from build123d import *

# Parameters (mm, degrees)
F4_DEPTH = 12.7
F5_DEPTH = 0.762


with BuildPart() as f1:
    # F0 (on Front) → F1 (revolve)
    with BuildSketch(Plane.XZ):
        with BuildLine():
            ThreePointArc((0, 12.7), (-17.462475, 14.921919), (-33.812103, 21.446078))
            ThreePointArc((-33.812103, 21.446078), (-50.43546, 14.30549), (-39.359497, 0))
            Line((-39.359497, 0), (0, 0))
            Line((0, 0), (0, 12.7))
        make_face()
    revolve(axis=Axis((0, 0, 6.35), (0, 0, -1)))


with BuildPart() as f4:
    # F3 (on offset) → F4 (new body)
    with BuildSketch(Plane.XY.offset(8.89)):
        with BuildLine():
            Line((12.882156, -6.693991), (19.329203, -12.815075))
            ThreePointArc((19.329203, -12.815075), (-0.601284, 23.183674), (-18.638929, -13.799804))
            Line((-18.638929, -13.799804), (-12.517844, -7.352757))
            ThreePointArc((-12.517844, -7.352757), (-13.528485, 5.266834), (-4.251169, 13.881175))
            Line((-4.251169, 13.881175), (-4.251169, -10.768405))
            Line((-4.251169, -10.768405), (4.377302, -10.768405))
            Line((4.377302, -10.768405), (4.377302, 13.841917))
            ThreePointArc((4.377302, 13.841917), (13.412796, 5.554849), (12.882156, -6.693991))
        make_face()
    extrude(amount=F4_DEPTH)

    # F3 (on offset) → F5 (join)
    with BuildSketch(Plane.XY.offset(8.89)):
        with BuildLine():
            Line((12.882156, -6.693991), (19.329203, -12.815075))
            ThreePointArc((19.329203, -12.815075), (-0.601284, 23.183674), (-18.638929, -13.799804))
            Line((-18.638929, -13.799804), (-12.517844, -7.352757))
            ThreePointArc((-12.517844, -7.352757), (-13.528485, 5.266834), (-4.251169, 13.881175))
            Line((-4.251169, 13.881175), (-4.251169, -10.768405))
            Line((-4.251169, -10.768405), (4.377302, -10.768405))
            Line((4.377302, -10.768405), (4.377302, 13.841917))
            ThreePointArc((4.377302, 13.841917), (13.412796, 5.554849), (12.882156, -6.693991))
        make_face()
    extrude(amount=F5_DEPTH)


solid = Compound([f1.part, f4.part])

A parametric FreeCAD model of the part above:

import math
import FreeCAD as App
import Part
import Sketcher
from FreeCAD import Vector
Q = App.Units.Quantity

doc = App.newDocument("Part")
params = doc.addObject("Spreadsheet::Sheet", "Params")
for row, (alias, value) in enumerate([
    ("sketch1_height", "0.5 in"),
    ("revolution_angle", "360 deg"),
    ("sketch2_length", "0.35 in"),
    ("pad1_length", "0.5 in"),
    ("sketch3_length", "0.35 in"),
    ("pad2_length", "0.03 in"),
], start=1):
    params.set(f"A{row}", alias)
    params.set(f"B{row}", "=" + value)
    params.setAlias(f"B{row}", alias)

body = doc.addObject("PartDesign::Body", "Body")

# Sketch on XZ plane
sketch1 = body.newObject("Sketcher::SketchObject", "Sketch")
sketch1.AttachmentSupport = (doc.getObject("XZ_Plane"), [""])
sketch1.MapMode = "FlatFace"
sketch1.addGeometry(Part.ArcOfCircle(Part.Circle(Vector(0, 82, 0), Vector(0, 0, 1), 70), math.radians(-119), math.radians(-90)), False)
sketch1.addGeometry(Part.ArcOfCircle(Part.Circle(Vector(-39, 11, 0), Vector(0, 0, 1), 11), math.radians(61), math.radians(270)), False)
sketch1.addGeometry(Part.LineSegment(Vector(-39, 0, 0), Vector(0, 0, 0)), False)
sketch1.addGeometry(Part.LineSegment(Vector(0, 0, 0), Vector(0, 13, 0)), False)
sketch1.addConstraint(Sketcher.Constraint("Tangent", 0, 1, 1, 1))
sketch1.addConstraint(Sketcher.Constraint("Tangent", 1, 2, 2, 1))
sketch1.addConstraint(Sketcher.Constraint("Coincident", 2, 2, 3, 1))
sketch1.addConstraint(Sketcher.Constraint("Coincident", 3, 2, 0, 2))
sketch1.addConstraint(Sketcher.Constraint("Horizontal", 2))
sketch1.addConstraint(Sketcher.Constraint("Vertical", 3))
sketch1.addConstraint(Sketcher.Constraint("Coincident", 2, 2, -1, 1))
sketch1.addConstraint(Sketcher.Constraint("PointOnObject", 0, 3, -2))
sketch1.addConstraint(Sketcher.Constraint("DistanceY", 3, 1, 3, 2, Q("0.5 in")))
sketch1.addConstraint(Sketcher.Constraint("Radius", 0, 69.731381))
sketch1.addConstraint(Sketcher.Constraint("Radius", 1, 11.440503))
sketch1.setExpression("Constraints[8]", "Params.sketch1_height")
revolution = body.newObject("PartDesign::Revolution", "Revolution")
revolution.Profile = sketch1
revolution.ReferenceAxis = (sketch1, ["V_Axis"])
revolution.setExpression("Angle", "Params.revolution_angle")
body2 = doc.addObject("PartDesign::Body", "Body001")

# Sketch on XY plane
sketch2 = body2.newObject("Sketcher::SketchObject", "Sketch001")
sketch2.AttachmentSupport = (doc.getObject("XY_Plane001"), [""])
sketch2.MapMode = "FlatFace"
sketch2.AttachmentOffset = App.Placement(Vector(0, 0, 0.35 * 25.4), App.Rotation())
sketch2.addGeometry(Part.LineSegment(Vector(13, -7, 0), Vector(19, -13, 0)), False)
sketch2.addGeometry(Part.ArcOfCircle(Part.Circle(Vector(0, 0, 0), Vector(0, 0, 1), 23), math.radians(-34), math.radians(217)), False)
sketch2.addGeometry(Part.LineSegment(Vector(-19, -14, 0), Vector(-13, -7, 0)), False)
sketch2.addGeometry(Part.ArcOfCircle(Part.Circle(Vector(0, 0, 0), Vector(0, 0, 1), 15), math.radians(107), math.radians(210)), False)
sketch2.addGeometry(Part.LineSegment(Vector(-4, 14, 0), Vector(-4, -11, 0)), False)
sketch2.addGeometry(Part.LineSegment(Vector(-4, -11, 0), Vector(4, -11, 0)), False)
sketch2.addGeometry(Part.LineSegment(Vector(4, -11, 0), Vector(4, 14, 0)), False)
sketch2.addGeometry(Part.ArcOfCircle(Part.Circle(Vector(0, 0, 0), Vector(0, 0, 1), 15), math.radians(-27), math.radians(72)), False)
sketch2.addConstraint(Sketcher.Constraint("Coincident", 0, 2, 1, 1))
sketch2.addConstraint(Sketcher.Constraint("Coincident", 1, 2, 2, 1))
sketch2.addConstraint(Sketcher.Constraint("Coincident", 2, 2, 3, 2))
sketch2.addConstraint(Sketcher.Constraint("Coincident", 3, 1, 4, 1))
sketch2.addConstraint(Sketcher.Constraint("Coincident", 4, 2, 5, 1))
sketch2.addConstraint(Sketcher.Constraint("Coincident", 5, 2, 6, 1))
sketch2.addConstraint(Sketcher.Constraint("Coincident", 6, 2, 7, 2))
sketch2.addConstraint(Sketcher.Constraint("Coincident", 7, 1, 0, 1))
sketch2.addConstraint(Sketcher.Constraint("Vertical", 4))
sketch2.addConstraint(Sketcher.Constraint("Horizontal", 5))
sketch2.addConstraint(Sketcher.Constraint("Vertical", 6))
sketch2.addConstraint(Sketcher.Constraint("Coincident", 1, 3, -1, 1))
sketch2.addConstraint(Sketcher.Constraint("Coincident", 3, 3, -1, 1))
sketch2.addConstraint(Sketcher.Constraint("Coincident", 7, 3, -1, 1))
sketch2.addConstraint(Sketcher.Constraint("Equal", 3, 7))
sketch2.addConstraint(Sketcher.Constraint("Perpendicular", 0, 2))
sketch2.addConstraint(Sketcher.Constraint("Equal", 0, 2))
sketch2.addConstraint(Sketcher.Constraint("Distance", 0, Q("0.35 in")))
sketch2.addConstraint(Sketcher.Constraint("Radius", 1, 23.19147))
sketch2.addConstraint(Sketcher.Constraint("Radius", 3, 14.517557))
sketch2.addConstraint(Sketcher.Constraint("DistanceX", 5, 1, 5, 2, 8.628471))
sketch2.addConstraint(Sketcher.Constraint("DistanceY", 4, 2, 4, 1, 24.64958))
sketch2.addConstraint(Sketcher.Constraint("DistanceY", 6, 1, 6, 2, 24.610322))
sketch2.addConstraint(Sketcher.Constraint("DistanceY", 1, 2, 4, 2, 3.031399))
sketch2.setExpression("Constraints[17]", "Params.sketch2_length")
pad1 = body2.newObject("PartDesign::Pad", "Pad")
pad1.Profile = sketch2
pad1.setExpression("Length", "Params.pad1_length")

# Sketch on XY plane
sketch3 = body2.newObject("Sketcher::SketchObject", "Sketch002")
sketch3.AttachmentSupport = (doc.getObject("XY_Plane001"), [""])
sketch3.MapMode = "FlatFace"
sketch3.AttachmentOffset = App.Placement(Vector(0, 0, 0.35 * 25.4), App.Rotation())
sketch3.addGeometry(Part.LineSegment(Vector(13, -7, 0), Vector(19, -13, 0)), False)
sketch3.addGeometry(Part.ArcOfCircle(Part.Circle(Vector(0, 0, 0), Vector(0, 0, 1), 23), math.radians(-34), math.radians(217)), False)
sketch3.addGeometry(Part.LineSegment(Vector(-19, -14, 0), Vector(-13, -7, 0)), False)
sketch3.addGeometry(Part.ArcOfCircle(Part.Circle(Vector(0, 0, 0), Vector(0, 0, 1), 15), math.radians(107), math.radians(210)), False)
sketch3.addGeometry(Part.LineSegment(Vector(-4, 14, 0), Vector(-4, -11, 0)), False)
sketch3.addGeometry(Part.LineSegment(Vector(-4, -11, 0), Vector(4, -11, 0)), False)
sketch3.addGeometry(Part.LineSegment(Vector(4, -11, 0), Vector(4, 14, 0)), False)
sketch3.addGeometry(Part.ArcOfCircle(Part.Circle(Vector(0, 0, 0), Vector(0, 0, 1), 15), math.radians(-27), math.radians(72)), False)
sketch3.addConstraint(Sketcher.Constraint("Coincident", 0, 2, 1, 1))
sketch3.addConstraint(Sketcher.Constraint("Coincident", 1, 2, 2, 1))
sketch3.addConstraint(Sketcher.Constraint("Coincident", 2, 2, 3, 2))
sketch3.addConstraint(Sketcher.Constraint("Coincident", 3, 1, 4, 1))
sketch3.addConstraint(Sketcher.Constraint("Coincident", 4, 2, 5, 1))
sketch3.addConstraint(Sketcher.Constraint("Coincident", 5, 2, 6, 1))
sketch3.addConstraint(Sketcher.Constraint("Coincident", 6, 2, 7, 2))
sketch3.addConstraint(Sketcher.Constraint("Coincident", 7, 1, 0, 1))
sketch3.addConstraint(Sketcher.Constraint("Vertical", 4))
sketch3.addConstraint(Sketcher.Constraint("Horizontal", 5))
sketch3.addConstraint(Sketcher.Constraint("Vertical", 6))
sketch3.addConstraint(Sketcher.Constraint("Coincident", 1, 3, -1, 1))
sketch3.addConstraint(Sketcher.Constraint("Coincident", 3, 3, -1, 1))
sketch3.addConstraint(Sketcher.Constraint("Coincident", 7, 3, -1, 1))
sketch3.addConstraint(Sketcher.Constraint("Equal", 3, 7))
sketch3.addConstraint(Sketcher.Constraint("Perpendicular", 0, 2))
sketch3.addConstraint(Sketcher.Constraint("Equal", 0, 2))
sketch3.addConstraint(Sketcher.Constraint("Distance", 0, Q("0.35 in")))
sketch3.addConstraint(Sketcher.Constraint("Radius", 1, 23.19147))
sketch3.addConstraint(Sketcher.Constraint("Radius", 3, 14.517557))
sketch3.addConstraint(Sketcher.Constraint("DistanceX", 5, 1, 5, 2, 8.628471))
sketch3.addConstraint(Sketcher.Constraint("DistanceY", 4, 2, 4, 1, 24.64958))
sketch3.addConstraint(Sketcher.Constraint("DistanceY", 6, 1, 6, 2, 24.610322))
sketch3.addConstraint(Sketcher.Constraint("DistanceY", 1, 2, 4, 2, 3.031399))
sketch3.setExpression("Constraints[17]", "Params.sketch3_length")
pad2 = body2.newObject("PartDesign::Pad", "Pad001")
pad2.Profile = sketch3
pad2.setExpression("Length", "Params.pad2_length")

doc.recompute()
